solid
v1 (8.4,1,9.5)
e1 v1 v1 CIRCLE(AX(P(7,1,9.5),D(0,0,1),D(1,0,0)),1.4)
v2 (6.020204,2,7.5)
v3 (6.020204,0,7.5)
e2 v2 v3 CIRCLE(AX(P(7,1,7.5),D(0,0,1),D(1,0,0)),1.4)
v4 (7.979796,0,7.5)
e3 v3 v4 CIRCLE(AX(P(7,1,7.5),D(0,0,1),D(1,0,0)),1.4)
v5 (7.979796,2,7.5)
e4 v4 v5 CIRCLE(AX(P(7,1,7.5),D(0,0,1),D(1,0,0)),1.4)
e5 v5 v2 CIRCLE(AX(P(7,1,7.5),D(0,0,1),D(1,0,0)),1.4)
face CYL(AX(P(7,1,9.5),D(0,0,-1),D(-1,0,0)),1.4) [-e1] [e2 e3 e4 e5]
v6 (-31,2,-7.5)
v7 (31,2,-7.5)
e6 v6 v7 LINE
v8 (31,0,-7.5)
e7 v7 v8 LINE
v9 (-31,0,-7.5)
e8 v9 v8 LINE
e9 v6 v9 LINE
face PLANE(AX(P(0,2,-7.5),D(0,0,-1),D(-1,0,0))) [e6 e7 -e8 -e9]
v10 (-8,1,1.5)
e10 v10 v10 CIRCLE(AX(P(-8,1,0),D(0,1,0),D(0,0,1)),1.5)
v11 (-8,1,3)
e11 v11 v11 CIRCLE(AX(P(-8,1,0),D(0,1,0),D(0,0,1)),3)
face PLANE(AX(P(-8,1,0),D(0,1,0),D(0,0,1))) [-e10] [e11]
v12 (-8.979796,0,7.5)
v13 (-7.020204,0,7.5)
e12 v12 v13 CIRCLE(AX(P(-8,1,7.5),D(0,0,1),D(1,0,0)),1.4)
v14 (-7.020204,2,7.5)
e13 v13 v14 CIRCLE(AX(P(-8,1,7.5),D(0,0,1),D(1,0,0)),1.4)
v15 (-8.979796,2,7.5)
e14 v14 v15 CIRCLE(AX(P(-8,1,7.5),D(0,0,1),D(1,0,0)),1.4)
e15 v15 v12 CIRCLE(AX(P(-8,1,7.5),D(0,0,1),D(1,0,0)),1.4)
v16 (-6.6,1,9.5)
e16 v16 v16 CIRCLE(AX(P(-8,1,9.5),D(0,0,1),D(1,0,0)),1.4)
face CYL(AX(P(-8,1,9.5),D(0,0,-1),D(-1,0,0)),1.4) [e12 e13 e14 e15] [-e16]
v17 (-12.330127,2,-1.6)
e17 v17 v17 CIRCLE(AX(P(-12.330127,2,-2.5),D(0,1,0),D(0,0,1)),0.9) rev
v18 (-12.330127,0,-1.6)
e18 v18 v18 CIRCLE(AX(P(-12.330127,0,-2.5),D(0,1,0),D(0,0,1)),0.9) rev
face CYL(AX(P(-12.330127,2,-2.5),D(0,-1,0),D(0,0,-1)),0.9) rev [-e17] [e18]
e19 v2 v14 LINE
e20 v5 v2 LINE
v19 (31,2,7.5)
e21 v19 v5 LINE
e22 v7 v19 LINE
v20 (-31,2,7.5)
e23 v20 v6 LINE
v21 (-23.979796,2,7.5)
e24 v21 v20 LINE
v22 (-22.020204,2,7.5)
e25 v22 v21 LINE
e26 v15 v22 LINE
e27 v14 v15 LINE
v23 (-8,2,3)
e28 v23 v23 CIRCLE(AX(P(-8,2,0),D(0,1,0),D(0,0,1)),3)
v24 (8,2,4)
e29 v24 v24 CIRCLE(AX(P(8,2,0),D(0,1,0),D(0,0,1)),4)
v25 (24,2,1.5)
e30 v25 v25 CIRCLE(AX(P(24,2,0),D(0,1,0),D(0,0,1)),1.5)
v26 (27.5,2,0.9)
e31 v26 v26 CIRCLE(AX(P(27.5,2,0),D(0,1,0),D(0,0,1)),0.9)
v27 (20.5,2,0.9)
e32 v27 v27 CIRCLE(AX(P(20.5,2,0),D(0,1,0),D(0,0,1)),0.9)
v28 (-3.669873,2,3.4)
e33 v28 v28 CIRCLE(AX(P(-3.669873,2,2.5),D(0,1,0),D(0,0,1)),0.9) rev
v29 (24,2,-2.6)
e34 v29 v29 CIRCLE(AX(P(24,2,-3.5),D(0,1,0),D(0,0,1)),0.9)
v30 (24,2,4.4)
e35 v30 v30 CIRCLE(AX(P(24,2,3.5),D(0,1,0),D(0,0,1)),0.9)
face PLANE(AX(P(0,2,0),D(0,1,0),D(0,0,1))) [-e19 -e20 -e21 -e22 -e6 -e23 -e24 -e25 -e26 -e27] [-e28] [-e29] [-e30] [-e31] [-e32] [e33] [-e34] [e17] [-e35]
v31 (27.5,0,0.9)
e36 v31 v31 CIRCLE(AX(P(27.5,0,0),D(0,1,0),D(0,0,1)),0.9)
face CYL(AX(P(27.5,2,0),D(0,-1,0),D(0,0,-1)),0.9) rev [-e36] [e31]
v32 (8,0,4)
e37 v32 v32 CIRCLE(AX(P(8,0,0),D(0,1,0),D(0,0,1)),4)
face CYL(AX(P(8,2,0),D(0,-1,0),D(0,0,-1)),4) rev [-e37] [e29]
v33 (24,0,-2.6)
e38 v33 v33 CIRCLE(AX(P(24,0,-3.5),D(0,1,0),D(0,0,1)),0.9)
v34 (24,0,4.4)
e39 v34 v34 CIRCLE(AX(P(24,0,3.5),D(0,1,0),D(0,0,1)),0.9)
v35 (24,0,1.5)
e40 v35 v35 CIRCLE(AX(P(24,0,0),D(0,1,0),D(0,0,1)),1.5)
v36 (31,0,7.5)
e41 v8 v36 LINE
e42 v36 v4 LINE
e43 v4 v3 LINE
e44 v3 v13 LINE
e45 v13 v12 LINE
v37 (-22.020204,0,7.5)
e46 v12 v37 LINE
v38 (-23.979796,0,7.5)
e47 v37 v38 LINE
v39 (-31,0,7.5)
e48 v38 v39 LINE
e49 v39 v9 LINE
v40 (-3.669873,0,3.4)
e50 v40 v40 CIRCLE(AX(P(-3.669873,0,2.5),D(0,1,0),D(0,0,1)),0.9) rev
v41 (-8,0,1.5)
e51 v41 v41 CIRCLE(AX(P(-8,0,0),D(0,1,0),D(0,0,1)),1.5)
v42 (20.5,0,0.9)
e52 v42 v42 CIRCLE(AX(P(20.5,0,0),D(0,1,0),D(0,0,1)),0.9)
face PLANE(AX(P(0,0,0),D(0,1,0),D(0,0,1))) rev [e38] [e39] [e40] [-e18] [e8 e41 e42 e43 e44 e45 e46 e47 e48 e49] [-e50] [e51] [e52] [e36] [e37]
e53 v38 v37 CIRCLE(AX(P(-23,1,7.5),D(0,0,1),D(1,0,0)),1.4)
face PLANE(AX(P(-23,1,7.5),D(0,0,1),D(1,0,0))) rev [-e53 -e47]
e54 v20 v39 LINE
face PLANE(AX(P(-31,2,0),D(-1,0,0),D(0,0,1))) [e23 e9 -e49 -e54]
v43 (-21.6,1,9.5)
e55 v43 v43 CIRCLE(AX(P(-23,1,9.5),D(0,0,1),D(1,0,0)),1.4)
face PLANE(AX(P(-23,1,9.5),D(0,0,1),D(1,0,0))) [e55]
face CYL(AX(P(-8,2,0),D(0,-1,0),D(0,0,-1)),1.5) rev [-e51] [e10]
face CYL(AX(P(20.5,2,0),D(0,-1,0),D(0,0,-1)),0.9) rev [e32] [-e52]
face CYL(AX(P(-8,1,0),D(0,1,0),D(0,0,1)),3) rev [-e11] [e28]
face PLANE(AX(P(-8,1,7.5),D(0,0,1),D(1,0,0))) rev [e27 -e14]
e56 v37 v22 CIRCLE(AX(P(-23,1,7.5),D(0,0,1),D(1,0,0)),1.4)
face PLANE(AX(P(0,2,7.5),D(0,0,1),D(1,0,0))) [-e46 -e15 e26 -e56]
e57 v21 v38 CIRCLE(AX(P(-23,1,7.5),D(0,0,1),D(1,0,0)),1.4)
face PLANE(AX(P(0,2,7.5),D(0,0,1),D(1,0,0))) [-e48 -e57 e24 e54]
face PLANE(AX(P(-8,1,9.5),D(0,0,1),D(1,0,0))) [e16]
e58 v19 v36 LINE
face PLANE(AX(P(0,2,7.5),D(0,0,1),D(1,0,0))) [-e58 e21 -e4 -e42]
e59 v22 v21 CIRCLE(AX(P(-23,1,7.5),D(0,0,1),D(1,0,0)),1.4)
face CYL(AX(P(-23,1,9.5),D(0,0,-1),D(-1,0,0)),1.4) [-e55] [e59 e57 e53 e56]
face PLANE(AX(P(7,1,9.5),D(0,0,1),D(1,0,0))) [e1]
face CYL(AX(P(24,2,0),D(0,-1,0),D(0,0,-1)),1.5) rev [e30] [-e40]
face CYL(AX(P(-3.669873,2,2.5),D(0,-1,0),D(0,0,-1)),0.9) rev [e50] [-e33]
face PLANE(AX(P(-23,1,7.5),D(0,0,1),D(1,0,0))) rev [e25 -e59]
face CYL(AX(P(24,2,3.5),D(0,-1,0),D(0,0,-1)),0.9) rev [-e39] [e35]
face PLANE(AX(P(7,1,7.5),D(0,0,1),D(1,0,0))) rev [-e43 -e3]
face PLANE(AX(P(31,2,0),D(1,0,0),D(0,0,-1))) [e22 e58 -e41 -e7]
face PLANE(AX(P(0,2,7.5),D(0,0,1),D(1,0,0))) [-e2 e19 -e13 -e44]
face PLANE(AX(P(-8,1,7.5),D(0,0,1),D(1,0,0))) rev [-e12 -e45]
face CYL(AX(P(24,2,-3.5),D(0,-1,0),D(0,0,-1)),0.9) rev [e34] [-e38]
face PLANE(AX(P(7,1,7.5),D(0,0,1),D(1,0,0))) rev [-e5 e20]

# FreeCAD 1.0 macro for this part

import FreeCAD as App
import Part
import Sketcher
from FreeCAD import Vector
Q = App.Units.Quantity

doc = App.newDocument("Part")
body = doc.addObject("PartDesign::Body", "Body")

sketch1 = body.newObject("Sketcher::SketchObject", "Sketch")
sketch1.AttachmentSupport = (doc.getObject("XZ_Plane"), [""])
sketch1.MapMode = "FlatFace"
sketch1.addGeometry([
    Part.LineSegment(Vector(-31, -7.5, 0), Vector(-31, 7.5, 0)),
    Part.LineSegment(Vector(-31, 7.5, 0), Vector(31, 7.5, 0)),
    Part.LineSegment(Vector(31, 7.5, 0), Vector(31, -7.5, 0)),
    Part.LineSegment(Vector(31, -7.5, 0), Vector(-31, -7.5, 0)),
    Part.Circle(Vector(-3.669873, 2.5, 0), Vector(0, 0, 1), 0.9),
    Part.Circle(Vector(24, 3.5, 0), Vector(0, 0, 1), 0.9),
    Part.Circle(Vector(-8, 0, 0), Vector(0, 0, 1), 1.5),
    Part.Circle(Vector(-12.330127, -2.5, 0), Vector(0, 0, 1), 0.9),
    Part.Circle(Vector(8, 0, 0), Vector(0, 0, 1), 4),
    Part.Circle(Vector(20.5, 0, 0), Vector(0, 0, 1), 0.9),
    Part.Circle(Vector(24, 0, 0), Vector(0, 0, 1), 1.5),
    Part.Circle(Vector(27.5, 0, 0), Vector(0, 0, 1), 0.9),
    Part.Circle(Vector(24, -3.5, 0), Vector(0, 0, 1), 0.9),
], False)
sketch1.addConstraint([
    Sketcher.Constraint("Coincident", 0, 2, 1, 1),
    Sketcher.Constraint("Coincident", 1, 2, 2, 1),
    Sketcher.Constraint("Coincident", 2, 2, 3, 1),
    Sketcher.Constraint("Coincident", 3, 2, 0, 1),
    Sketcher.Constraint("Vertical", 0),
    Sketcher.Constraint("Horizontal", 1),
    Sketcher.Constraint("Vertical", 2),
    Sketcher.Constraint("Horizontal", 3),
    Sketcher.Constraint("Equal", 4, 5),
    Sketcher.Constraint("Equal", 5, 7),
    Sketcher.Constraint("Equal", 7, 9),
    Sketcher.Constraint("Equal", 6, 10),
    Sketcher.Constraint("Equal", 9, 11),
    Sketcher.Constraint("Equal", 11, 12),
    Sketcher.Constraint("Symmetric", 6, 3, 8, 3, -1, 1),
    Sketcher.Constraint("Symmetric", 0, 2, 2, 2, -1, 1),
    Sketcher.Constraint("Symmetric", 5, 3, 12, 3, -1),
    Sketcher.Constraint("PointOnObject", 6, 3, -1),
    Sketcher.Constraint("PointOnObject", 9, 3, -1),
    Sketcher.Constraint("PointOnObject", 10, 3, -1),
    Sketcher.Constraint("PointOnObject", 11, 3, -1),
    Sketcher.Constraint("Vertical", 5, 3, 10, 3),
    Sketcher.Constraint("Diameter", 6, Q("3 mm")),
    Sketcher.Constraint("Diameter", 8, Q("8 mm")),
    Sketcher.Constraint("Diameter", 4, Q("1.8 mm")),
    Sketcher.Constraint("DistanceX", 1, 1, 1, 2, Q("62 mm")),
    Sketcher.Constraint("DistanceY", 0, 1, 0, 2, Q("15 mm")),
    Sketcher.Constraint("DistanceX", -1, 1, 5, 3, Q("24 mm")),
    Sketcher.Constraint("DistanceX", 6, 3, -1, 1, Q("8 mm")),
    Sketcher.Constraint("DistanceY", 4, 3, 5, 3, Q("1 mm")),
    Sketcher.Constraint("DistanceY", 7, 3, 4, 3, Q("5 mm")),
    Sketcher.Constraint("DistanceX", 9, 3, 11, 3, Q("7 mm")),
    Sketcher.Constraint("DistanceY", 12, 3, 5, 3, Q("7 mm")),
    Sketcher.Constraint("DistanceX", -1, 1, 9, 3, Q("20.5 mm")),
    Sketcher.Constraint("DistanceX", 4, 3, -1, 1, Q("3.669873 mm")),
    Sketcher.Constraint("DistanceX", 7, 3, -1, 1, Q("12.330127 mm")),
])
pad1 = body.newObject("PartDesign::Pad", "Pad")
pad1.Profile = sketch1
pad1.Length = 2
pad1.Reversed = True

sketch2 = body.newObject("Sketcher::SketchObject", "Sketch001")
sketch2.AttachmentSupport = (doc.getObject("XY_Plane"), [""])
sketch2.MapMode = "FlatFace"
sketch2.AttachmentOffset = App.Placement(Vector(0, 0, 7.5), App.Rotation())
sketch2.addGeometry([
    Part.Circle(Vector(-23, 1, 0), Vector(0, 0, 1), 1.4),
    Part.Circle(Vector(-8, 1, 0), Vector(0, 0, 1), 1.4),
    Part.Circle(Vector(7, 1, 0), Vector(0, 0, 1), 1.4),
], False)
sketch2.addConstraint([
    Sketcher.Constraint("Equal", 0, 1),
    Sketcher.Constraint("Equal", 1, 2),
    Sketcher.Constraint("Horizontal", 0, 3, 1, 3),
    Sketcher.Constraint("Horizontal", 1, 3, 2, 3),
    Sketcher.Constraint("Diameter", 0, Q("2.8 mm")),
    Sketcher.Constraint("DistanceX", 0, 3, -1, 1, Q("23 mm")),
    Sketcher.Constraint("DistanceY", -1, 1, 0, 3, Q("1 mm")),
    Sketcher.Constraint("DistanceX", 1, 3, -1, 1, Q("8 mm")),
    Sketcher.Constraint("DistanceX", -1, 1, 2, 3, Q("7 mm")),
])
pad2 = body.newObject("PartDesign::Pad", "Pad001")
pad2.Profile = sketch2
pad2.Length = 2

sketch3 = body.newObject("Sketcher::SketchObject", "Sketch002")
sketch3.AttachmentSupport = (doc.getObject("XZ_Plane"), [""])
sketch3.MapMode = "FlatFace"
sketch3.AttachmentOffset = App.Placement(Vector(0, 0, -2), App.Rotation())
sketch3.addGeometry(Part.Circle(Vector(-8, 0, 0), Vector(0, 0, 1), 3), False)
sketch3.addConstraint([
    Sketcher.Constraint("PointOnObject", 0, 3, -1),
    Sketcher.Constraint("Diameter", 0, Q("6 mm")),
    Sketcher.Constraint("DistanceX", 0, 3, -1, 1, Q("8 mm")),
])
pocket1 = body.newObject("PartDesign::Pocket", "Pocket")
pocket1.Profile = sketch3
pocket1.Length = 1
pocket1.Reversed = True

doc.recompute()
